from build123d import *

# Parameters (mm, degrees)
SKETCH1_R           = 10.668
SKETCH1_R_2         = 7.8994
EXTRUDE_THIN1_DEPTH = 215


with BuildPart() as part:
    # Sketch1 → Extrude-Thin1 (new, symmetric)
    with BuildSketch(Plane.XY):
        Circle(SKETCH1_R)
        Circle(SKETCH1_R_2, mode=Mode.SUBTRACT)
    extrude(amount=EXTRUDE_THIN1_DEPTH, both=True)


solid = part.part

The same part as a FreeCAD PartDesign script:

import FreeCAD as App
import Part
import Sketcher

V = App.Vector
Q = App.Units.Quantity

doc = App.newDocument("Part")
body = doc.addObject("PartDesign::Body", "Body")

# Sketch on XY plane
sketch1 = body.newObject("Sketcher::SketchObject", "Sketch")
sketch1.AttachmentSupport = (doc.getObject("XY_Plane"), [""])
sketch1.MapMode = "FlatFace"
sketch1.addGeometry(Part.Circle(V(0, 0, 0), V(0, 0, 1), 11), False)
sketch1.addGeometry(Part.Circle(V(0, 0, 0), V(0, 0, 1), 8), False)
sketch1.addConstraint(Sketcher.Constraint("Coincident", 0, 3, -1, 1))
sketch1.addConstraint(Sketcher.Constraint("Coincident", 1, 3, -1, 1))
sketch1.addConstraint(Sketcher.Constraint("Diameter", 0, Q("0.84 in")))
sketch1.addConstraint(Sketcher.Constraint("Diameter", 1, Q("0.622 in")))
pad1 = body.newObject("PartDesign::Pad", "Pad")
pad1.Profile = sketch1
pad1.Length = 430
pad1.Midplane = True

doc.recompute()
